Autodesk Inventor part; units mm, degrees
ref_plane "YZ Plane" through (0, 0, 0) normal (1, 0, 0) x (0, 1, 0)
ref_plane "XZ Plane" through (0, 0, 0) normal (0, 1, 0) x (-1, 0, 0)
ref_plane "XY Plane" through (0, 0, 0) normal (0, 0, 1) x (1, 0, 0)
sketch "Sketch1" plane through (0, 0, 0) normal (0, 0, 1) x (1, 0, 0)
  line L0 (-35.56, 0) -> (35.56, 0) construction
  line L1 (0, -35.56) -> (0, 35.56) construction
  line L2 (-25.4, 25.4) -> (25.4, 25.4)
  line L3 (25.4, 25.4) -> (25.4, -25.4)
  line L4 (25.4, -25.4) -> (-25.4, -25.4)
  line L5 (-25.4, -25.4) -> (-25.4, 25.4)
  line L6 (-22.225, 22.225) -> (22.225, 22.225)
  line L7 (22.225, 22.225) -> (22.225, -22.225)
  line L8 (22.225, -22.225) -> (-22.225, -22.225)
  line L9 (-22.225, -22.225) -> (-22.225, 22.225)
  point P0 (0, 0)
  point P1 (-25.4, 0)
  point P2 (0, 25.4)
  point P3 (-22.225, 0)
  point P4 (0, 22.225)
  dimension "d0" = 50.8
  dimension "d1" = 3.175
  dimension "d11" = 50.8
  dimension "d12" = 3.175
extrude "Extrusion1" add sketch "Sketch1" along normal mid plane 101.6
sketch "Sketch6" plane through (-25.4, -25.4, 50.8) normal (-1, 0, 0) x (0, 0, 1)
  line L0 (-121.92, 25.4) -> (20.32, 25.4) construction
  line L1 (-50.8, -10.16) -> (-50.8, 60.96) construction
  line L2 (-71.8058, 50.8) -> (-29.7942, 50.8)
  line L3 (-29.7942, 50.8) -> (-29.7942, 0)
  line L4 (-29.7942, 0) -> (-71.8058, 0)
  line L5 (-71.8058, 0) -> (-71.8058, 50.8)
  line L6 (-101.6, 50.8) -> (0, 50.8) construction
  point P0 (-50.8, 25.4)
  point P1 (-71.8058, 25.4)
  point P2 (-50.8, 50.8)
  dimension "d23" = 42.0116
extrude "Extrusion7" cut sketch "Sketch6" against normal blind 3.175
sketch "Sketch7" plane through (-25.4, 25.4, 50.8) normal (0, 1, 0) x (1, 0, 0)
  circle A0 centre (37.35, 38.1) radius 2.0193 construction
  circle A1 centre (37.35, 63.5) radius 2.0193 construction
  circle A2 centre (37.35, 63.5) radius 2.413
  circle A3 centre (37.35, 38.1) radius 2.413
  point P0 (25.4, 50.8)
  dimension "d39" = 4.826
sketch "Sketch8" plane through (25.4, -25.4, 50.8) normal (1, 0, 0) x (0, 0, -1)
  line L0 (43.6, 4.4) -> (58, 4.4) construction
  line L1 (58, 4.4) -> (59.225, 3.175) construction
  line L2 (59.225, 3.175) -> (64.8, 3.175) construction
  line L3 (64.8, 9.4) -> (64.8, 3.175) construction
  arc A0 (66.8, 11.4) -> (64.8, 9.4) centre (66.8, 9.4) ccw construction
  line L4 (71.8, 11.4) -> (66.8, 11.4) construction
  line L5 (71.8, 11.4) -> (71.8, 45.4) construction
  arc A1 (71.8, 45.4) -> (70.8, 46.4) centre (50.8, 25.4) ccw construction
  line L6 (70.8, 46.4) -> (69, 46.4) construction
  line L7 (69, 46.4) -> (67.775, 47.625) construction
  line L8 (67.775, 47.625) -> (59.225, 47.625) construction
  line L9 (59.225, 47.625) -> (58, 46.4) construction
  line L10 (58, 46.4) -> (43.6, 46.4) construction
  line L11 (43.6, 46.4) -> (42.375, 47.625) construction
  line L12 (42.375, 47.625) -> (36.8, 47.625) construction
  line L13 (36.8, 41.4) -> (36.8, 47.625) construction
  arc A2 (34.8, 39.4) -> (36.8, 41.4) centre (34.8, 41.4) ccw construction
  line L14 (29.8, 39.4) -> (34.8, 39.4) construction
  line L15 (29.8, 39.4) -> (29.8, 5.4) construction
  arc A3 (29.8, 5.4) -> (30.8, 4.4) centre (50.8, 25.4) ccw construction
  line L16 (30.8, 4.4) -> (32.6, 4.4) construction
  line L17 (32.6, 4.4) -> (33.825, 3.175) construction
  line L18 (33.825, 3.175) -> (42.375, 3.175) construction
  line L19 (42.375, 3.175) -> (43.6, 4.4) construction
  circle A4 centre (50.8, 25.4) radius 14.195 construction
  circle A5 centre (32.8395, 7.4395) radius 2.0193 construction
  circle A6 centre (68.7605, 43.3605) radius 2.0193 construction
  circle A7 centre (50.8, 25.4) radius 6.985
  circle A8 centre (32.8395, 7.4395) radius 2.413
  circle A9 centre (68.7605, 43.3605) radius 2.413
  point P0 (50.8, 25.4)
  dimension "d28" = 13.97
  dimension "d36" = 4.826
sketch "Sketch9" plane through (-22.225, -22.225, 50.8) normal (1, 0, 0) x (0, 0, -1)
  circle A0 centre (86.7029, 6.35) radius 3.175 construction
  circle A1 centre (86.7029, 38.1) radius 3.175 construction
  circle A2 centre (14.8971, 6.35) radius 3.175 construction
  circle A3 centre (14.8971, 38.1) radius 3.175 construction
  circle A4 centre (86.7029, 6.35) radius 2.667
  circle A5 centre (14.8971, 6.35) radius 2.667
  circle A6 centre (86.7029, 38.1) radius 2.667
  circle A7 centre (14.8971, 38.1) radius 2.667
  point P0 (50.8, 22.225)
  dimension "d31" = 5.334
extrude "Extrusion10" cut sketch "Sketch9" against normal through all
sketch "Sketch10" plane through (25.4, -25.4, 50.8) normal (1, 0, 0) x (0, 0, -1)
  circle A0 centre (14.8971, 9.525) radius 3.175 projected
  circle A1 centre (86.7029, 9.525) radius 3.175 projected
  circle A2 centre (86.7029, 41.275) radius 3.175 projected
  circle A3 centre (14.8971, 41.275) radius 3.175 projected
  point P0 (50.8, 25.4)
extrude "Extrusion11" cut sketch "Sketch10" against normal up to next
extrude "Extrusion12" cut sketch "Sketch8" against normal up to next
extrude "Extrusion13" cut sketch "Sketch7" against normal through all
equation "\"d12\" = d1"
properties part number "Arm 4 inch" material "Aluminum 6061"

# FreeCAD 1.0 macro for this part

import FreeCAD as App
import Part
import Sketcher
Q = App.Units.Quantity

doc = App.newDocument("Part")
body = doc.addObject("PartDesign::Body", "Body")

# Sketch on XY plane
sketch1 = body.newObject("Sketcher::SketchObject", "Sketch")
sketch1.AttachmentSupport = (doc.getObject("XY_Plane"), [""])
sketch1.MapMode = "FlatFace"
sketch1.addGeometry([
    Part.LineSegment(App.Vector(25, 25, 0), App.Vector(-25, 25, 0)),  # 0
    Part.LineSegment(App.Vector(-25, 25, 0), App.Vector(-25, -25, 0)),  # 1
    Part.LineSegment(App.Vector(-25, -25, 0), App.Vector(25, -25, 0)),  # 2
    Part.LineSegment(App.Vector(25, -25, 0), App.Vector(25, 25, 0)),  # 3
    Part.LineSegment(App.Vector(-22, -22, 0), App.Vector(-22, 22, 0)),  # 4
    Part.LineSegment(App.Vector(-22, 22, 0), App.Vector(22, 22, 0)),  # 5
    Part.LineSegment(App.Vector(22, 22, 0), App.Vector(22, -22, 0)),  # 6
    Part.LineSegment(App.Vector(22, -22, 0), App.Vector(-22, -22, 0)),  # 7
], False)
sketch1.addConstraint([
    Sketcher.Constraint("Coincident", 0, 2, 1, 1),
    Sketcher.Constraint("Coincident", 1, 2, 2, 1),
    Sketcher.Constraint("Coincident", 2, 2, 3, 1),
    Sketcher.Constraint("Coincident", 3, 2, 0, 1),
    Sketcher.Constraint("Coincident", 4, 2, 5, 1),
    Sketcher.Constraint("Coincident", 5, 2, 6, 1),
    Sketcher.Constraint("Coincident", 6, 2, 7, 1),
    Sketcher.Constraint("Coincident", 7, 2, 4, 1),
    Sketcher.Constraint("Horizontal", 0),
    Sketcher.Constraint("Vertical", 1),
    Sketcher.Constraint("Horizontal", 2),
    Sketcher.Constraint("Vertical", 3),
    Sketcher.Constraint("Vertical", 4),
    Sketcher.Constraint("Horizontal", 5),
    Sketcher.Constraint("Vertical", 6),
    Sketcher.Constraint("Horizontal", 7),
    Sketcher.Constraint("Symmetric", 0, 2, 2, 2, -1, 1),
    Sketcher.Constraint("Symmetric", 4, 2, 6, 2, -1, 1),
    Sketcher.Constraint("Equal", 2, 1),
    Sketcher.Constraint("Equal", 7, 4),
    Sketcher.Constraint("DistanceX", 0, 2, 0, 1, Q("2 in")),
    Sketcher.Constraint("DistanceX", 0, 2, 4, 2, Q("0.125 in")),
])
pad1 = body.newObject("PartDesign::Pad", "Pad")
pad1.Profile = sketch1
pad1.Length = Q("4 in")
pad1.Midplane = True

# Sketch on YZ plane
sketch2 = body.newObject("Sketcher::SketchObject", "Sketch001")
sketch2.AttachmentSupport = (doc.getObject("YZ_Plane"), [""])
sketch2.MapMode = "FlatFace"
sketch2.AttachmentOffset = App.Placement(App.Vector(0, 0, -1 * 25.4), App.Rotation())
sketch2.addGeometry([
    Part.LineSegment(App.Vector(25, 21, 0), App.Vector(25, -21, 0)),
    Part.LineSegment(App.Vector(25, -21, 0), App.Vector(-25, -21, 0)),
    Part.LineSegment(App.Vector(-25, -21, 0), App.Vector(-25, 21, 0)),
    Part.LineSegment(App.Vector(-25, 21, 0), App.Vector(25, 21, 0)),
], False)
sketch2.addConstraint([
    Sketcher.Constraint("Coincident", 0, 2, 1, 1),
    Sketcher.Constraint("Coincident", 1, 2, 2, 1),
    Sketcher.Constraint("Coincident", 2, 2, 3, 1),
    Sketcher.Constraint("Coincident", 3, 2, 0, 1),
    Sketcher.Constraint("Vertical", 0),
    Sketcher.Constraint("Horizontal", 1),
    Sketcher.Constraint("Vertical", 2),
    Sketcher.Constraint("Horizontal", 3),
    Sketcher.Constraint("Symmetric", 0, 2, 2, 2, -1, 1),
    Sketcher.Constraint("DistanceX", 1, 2, 1, 1, Q("2 in")),
    Sketcher.Constraint("DistanceY", 0, 2, 0, 1, Q("1.654 in")),
])
pocket1 = body.newObject("PartDesign::Pocket", "Pocket")
pocket1.Profile = sketch2
pocket1.Length = Q("0.125 in")
pocket1.Reversed = True

# Sketch on YZ plane
sketch3 = body.newObject("Sketcher::SketchObject", "Sketch002")
sketch3.AttachmentSupport = (doc.getObject("YZ_Plane"), [""])
sketch3.MapMode = "FlatFace"
sketch3.AttachmentOffset = App.Placement(App.Vector(0, 0, -0.875 * 25.4), App.Rotation())
sketch3.addGeometry([
    Part.Circle(App.Vector(-15.9, -35.9, 0), App.Vector(0, 0, 1), 2.7),
    Part.Circle(App.Vector(-15.9, 35.9, 0), App.Vector(0, 0, 1), 2.7),
    Part.Circle(App.Vector(15.9, -35.9, 0), App.Vector(0, 0, 1), 2.7),
    Part.Circle(App.Vector(15.9, 35.9, 0), App.Vector(0, 0, 1), 2.7),
], False)
sketch3.addConstraint([
    Sketcher.Constraint("Equal", 0, 1),
    Sketcher.Constraint("Equal", 1, 2),
    Sketcher.Constraint("Equal", 2, 3),
    Sketcher.Constraint("Symmetric", 1, 3, 2, 3, -1, 1),
    Sketcher.Constraint("Symmetric", 0, 3, 3, 3, -1, 1),
    Sketcher.Constraint("Symmetric", 0, 3, 2, 3, -2),
    Sketcher.Constraint("Diameter", 0, Q("0.21 in")),
    Sketcher.Constraint("DistanceX", 0, 3, 2, 3, Q("1.25 in")),
    Sketcher.Constraint("DistanceY", 0, 3, 1, 3, Q("2.827 in")),
])
pocket2 = body.newObject("PartDesign::Pocket", "Pocket001")
pocket2.Profile = sketch3
pocket2.Type = "ThroughAll"

# Sketch on YZ plane
sketch4 = body.newObject("Sketcher::SketchObject", "Sketch003")
sketch4.AttachmentSupport = (doc.getObject("YZ_Plane"), [""])
sketch4.MapMode = "FlatFace"
sketch4.AttachmentOffset = App.Placement(App.Vector(0, 0, 1 * 25.4), App.Rotation())
sketch4.addGeometry([
    Part.Circle(App.Vector(-15.9, 35.9, 0), App.Vector(0, 0, 1), 3.2),
    Part.Circle(App.Vector(-15.9, -35.9, 0), App.Vector(0, 0, 1), 3.2),
    Part.Circle(App.Vector(15.9, -35.9, 0), App.Vector(0, 0, 1), 3.2),
    Part.Circle(App.Vector(15.9, 35.9, 0), App.Vector(0, 0, 1), 3.2),
], False)
sketch4.addConstraint([
    Sketcher.Constraint("Equal", 0, 1),
    Sketcher.Constraint("Equal", 1, 2),
    Sketcher.Constraint("Equal", 2, 3),
    Sketcher.Constraint("Symmetric", 0, 3, 2, 3, -1, 1),
    Sketcher.Constraint("Symmetric", 1, 3, 3, 3, -1, 1),
    Sketcher.Constraint("Symmetric", 1, 3, 2, 3, -2),
    Sketcher.Constraint("Diameter", 0, Q("0.25 in")),
    Sketcher.Constraint("DistanceX", 1, 3, 2, 3, Q("1.25 in")),
    Sketcher.Constraint("DistanceY", 1, 3, 0, 3, Q("2.827 in")),
])
pocket3 = body.newObject("PartDesign::Pocket", "Pocket002")
pocket3.Profile = sketch4
pocket3.Type = "UpToFirst"

# Sketch on YZ plane
sketch5 = body.newObject("Sketcher::SketchObject", "Sketch004")
sketch5.AttachmentSupport = (doc.getObject("YZ_Plane"), [""])
sketch5.MapMode = "FlatFace"
sketch5.AttachmentOffset = App.Placement(App.Vector(0, 0, 1 * 25.4), App.Rotation())
sketch5.addGeometry([
    Part.Circle(App.Vector(0, 0, 0), App.Vector(0, 0, 1), 7),
    Part.Circle(App.Vector(-18, 18, 0), App.Vector(0, 0, 1), 2.4),
    Part.Circle(App.Vector(18, -18, 0), App.Vector(0, 0, 1), 2.4),
], False)
sketch5.addConstraint([
    Sketcher.Constraint("Coincident", 0, 3, -1, 1),
    Sketcher.Constraint("Equal", 1, 2),
    Sketcher.Constraint("Symmetric", 1, 3, 2, 3, -1, 1),
    Sketcher.Constraint("Diameter", 0, Q("0.55 in")),
    Sketcher.Constraint("Diameter", 1, Q("0.19 in")),
    Sketcher.Constraint("DistanceX", 1, 3, -1, 1, Q("0.7071 in")),
    Sketcher.Constraint("DistanceY", -1, 1, 1, 3, Q("0.7071 in")),
])
pocket4 = body.newObject("PartDesign::Pocket", "Pocket003")
pocket4.Profile = sketch5
pocket4.Type = "UpToFirst"

# Sketch on XZ plane
sketch6 = body.newObject("Sketcher::SketchObject", "Sketch005")
sketch6.AttachmentSupport = (doc.getObject("XZ_Plane"), [""])
sketch6.MapMode = "FlatFace"
sketch6.AttachmentOffset = App.Placement(App.Vector(0, 0, -1 * 25.4), App.Rotation())
sketch6.addGeometry([
    Part.Circle(App.Vector(11.9, -12.7, 0), App.Vector(0, 0, 1), 2.4),
    Part.Circle(App.Vector(11.9, 12.7, 0), App.Vector(0, 0, 1), 2.4),
], False)
sketch6.addConstraint([
    Sketcher.Constraint("Equal", 0, 1),
    Sketcher.Constraint("Symmetric", 0, 3, 1, 3, -1),
    Sketcher.Constraint("Diameter", 0, Q("0.19 in")),
    Sketcher.Constraint("DistanceY", 0, 3, 1, 3, Q("1 in")),
    Sketcher.Constraint("DistanceX", -1, 1, 0, 3, 11.95),
])
pocket5 = body.newObject("PartDesign::Pocket", "Pocket004")
pocket5.Profile = sketch6
pocket5.Type = "ThroughAll"
pocket5.Reversed = True

doc.recompute()
